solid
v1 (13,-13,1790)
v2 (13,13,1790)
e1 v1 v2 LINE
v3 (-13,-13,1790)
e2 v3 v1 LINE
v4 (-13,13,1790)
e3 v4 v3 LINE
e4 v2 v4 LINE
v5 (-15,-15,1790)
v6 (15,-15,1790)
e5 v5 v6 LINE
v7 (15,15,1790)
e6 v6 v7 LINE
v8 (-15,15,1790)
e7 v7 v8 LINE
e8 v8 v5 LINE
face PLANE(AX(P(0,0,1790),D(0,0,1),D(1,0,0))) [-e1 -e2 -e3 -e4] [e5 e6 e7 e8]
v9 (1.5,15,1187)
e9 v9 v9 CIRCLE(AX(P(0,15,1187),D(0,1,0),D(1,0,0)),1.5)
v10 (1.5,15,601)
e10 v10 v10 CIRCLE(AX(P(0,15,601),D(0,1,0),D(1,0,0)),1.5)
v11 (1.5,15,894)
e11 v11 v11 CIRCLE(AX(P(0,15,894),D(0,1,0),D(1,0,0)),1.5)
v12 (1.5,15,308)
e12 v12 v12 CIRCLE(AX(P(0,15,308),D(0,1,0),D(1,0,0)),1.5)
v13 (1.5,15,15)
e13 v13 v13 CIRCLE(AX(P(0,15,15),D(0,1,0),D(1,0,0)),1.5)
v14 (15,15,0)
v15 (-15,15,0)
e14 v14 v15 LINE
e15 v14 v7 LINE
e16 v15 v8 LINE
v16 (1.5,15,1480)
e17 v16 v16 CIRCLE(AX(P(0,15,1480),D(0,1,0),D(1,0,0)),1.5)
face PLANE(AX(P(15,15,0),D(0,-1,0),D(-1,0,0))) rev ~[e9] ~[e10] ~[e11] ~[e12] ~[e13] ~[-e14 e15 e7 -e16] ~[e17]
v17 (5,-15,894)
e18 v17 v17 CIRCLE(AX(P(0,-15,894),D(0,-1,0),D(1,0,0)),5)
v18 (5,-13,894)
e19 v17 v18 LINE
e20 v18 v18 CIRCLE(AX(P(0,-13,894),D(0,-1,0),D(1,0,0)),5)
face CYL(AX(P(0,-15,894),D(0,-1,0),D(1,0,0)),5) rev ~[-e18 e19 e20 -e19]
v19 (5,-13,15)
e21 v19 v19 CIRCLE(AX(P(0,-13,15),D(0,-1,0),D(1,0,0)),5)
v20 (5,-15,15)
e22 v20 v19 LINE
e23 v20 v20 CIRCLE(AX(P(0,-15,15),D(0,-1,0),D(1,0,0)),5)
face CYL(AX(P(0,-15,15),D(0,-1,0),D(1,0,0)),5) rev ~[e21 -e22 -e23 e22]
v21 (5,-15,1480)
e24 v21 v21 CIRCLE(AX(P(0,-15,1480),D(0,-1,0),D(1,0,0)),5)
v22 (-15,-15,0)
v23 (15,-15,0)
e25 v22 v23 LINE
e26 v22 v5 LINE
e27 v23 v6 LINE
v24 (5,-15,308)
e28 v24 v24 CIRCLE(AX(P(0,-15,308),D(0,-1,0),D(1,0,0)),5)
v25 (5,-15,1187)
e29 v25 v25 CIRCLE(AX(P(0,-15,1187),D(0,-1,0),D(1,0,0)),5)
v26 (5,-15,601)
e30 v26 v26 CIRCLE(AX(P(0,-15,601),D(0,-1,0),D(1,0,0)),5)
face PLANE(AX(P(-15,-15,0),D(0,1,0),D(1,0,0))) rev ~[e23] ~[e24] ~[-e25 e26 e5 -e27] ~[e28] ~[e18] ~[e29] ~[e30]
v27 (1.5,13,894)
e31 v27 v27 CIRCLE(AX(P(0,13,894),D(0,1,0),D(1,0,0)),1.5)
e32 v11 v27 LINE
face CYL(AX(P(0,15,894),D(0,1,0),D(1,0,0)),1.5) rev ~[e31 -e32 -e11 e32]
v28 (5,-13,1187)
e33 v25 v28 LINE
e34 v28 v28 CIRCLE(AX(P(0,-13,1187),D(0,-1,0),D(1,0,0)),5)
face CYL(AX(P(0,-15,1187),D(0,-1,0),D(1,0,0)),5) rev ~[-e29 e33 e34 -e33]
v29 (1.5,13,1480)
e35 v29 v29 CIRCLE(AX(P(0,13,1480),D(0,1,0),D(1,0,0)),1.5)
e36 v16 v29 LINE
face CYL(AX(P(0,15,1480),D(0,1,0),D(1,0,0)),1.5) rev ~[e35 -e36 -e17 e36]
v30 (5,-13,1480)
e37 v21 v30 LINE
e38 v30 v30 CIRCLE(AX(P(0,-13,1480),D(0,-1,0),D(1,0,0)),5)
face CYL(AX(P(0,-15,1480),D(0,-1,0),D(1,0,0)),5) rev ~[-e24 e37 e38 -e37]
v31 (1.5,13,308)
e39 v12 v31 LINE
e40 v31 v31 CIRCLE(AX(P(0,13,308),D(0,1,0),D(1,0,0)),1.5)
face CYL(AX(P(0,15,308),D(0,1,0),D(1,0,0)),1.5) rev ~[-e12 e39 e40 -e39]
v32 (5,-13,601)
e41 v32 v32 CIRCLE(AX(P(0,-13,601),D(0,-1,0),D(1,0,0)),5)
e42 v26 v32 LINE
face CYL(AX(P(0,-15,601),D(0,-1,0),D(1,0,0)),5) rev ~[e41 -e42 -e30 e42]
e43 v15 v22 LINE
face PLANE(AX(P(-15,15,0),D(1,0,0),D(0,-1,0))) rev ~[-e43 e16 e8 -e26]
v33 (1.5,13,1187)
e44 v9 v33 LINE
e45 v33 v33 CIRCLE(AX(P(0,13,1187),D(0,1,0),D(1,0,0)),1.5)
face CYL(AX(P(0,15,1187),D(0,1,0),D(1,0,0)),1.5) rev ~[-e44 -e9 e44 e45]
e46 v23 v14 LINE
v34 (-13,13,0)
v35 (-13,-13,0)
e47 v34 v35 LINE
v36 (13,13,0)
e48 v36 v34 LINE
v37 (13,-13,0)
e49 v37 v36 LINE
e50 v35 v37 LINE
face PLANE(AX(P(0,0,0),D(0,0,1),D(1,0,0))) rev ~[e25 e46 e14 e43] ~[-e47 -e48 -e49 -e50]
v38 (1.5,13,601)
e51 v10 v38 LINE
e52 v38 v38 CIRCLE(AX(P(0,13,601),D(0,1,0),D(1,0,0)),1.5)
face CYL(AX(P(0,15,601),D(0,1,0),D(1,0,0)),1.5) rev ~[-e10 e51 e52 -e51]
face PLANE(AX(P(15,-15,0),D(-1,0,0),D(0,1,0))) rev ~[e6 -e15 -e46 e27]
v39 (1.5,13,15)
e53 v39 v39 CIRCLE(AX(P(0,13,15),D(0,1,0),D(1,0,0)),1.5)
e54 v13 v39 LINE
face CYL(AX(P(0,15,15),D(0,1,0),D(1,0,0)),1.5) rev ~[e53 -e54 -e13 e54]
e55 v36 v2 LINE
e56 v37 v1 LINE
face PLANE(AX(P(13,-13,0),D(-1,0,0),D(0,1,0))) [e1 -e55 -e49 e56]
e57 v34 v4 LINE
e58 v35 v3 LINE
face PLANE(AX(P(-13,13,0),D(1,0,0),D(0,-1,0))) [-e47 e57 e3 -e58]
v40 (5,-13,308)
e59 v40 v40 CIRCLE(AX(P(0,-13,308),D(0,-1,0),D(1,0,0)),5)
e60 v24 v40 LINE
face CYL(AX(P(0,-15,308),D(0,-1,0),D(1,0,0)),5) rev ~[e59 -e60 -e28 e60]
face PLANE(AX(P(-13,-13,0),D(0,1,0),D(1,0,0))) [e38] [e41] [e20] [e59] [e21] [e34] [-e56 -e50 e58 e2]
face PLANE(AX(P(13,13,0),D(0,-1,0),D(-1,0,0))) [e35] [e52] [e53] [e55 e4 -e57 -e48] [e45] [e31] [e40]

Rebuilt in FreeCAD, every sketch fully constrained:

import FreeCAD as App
import Part
import Sketcher


def add_polygon(sketch, points):
    """Adds a closed chain of lines whose ends are joined by coincident constraints."""
    first, n = sketch.GeometryCount, len(points)
    for a, b in zip(points, points[1:] + points[:1]):
        sketch.addGeometry(Part.LineSegment(App.Vector(*a, 0), App.Vector(*b, 0)), False)
    for i in range(n):
        sketch.addConstraint(Sketcher.Constraint("Coincident", first + i, 2, first + (i + 1) % n, 1))

doc = App.newDocument("Part")
body = doc.addObject("PartDesign::Body", "Body")

sketch1 = doc.addObject("Sketcher::SketchObject", "Sketch")
body.addObject(sketch1)
sketch1.AttachmentSupport = (doc.XY_Plane, [""])
sketch1.MapMode = "FlatFace"
add_polygon(sketch1, [(-15, 15), (-15, -15), (15, -15), (15, 15)])
add_polygon(sketch1, [(13, -13), (-13, -13), (-13, 13), (13, 13)])
sketch1.addConstraint([
    Sketcher.Constraint("Vertical", 0),
    Sketcher.Constraint("Horizontal", 1),
    Sketcher.Constraint("Vertical", 2),
    Sketcher.Constraint("Horizontal", 3),
    Sketcher.Constraint("Horizontal", 4),
    Sketcher.Constraint("Vertical", 5),
    Sketcher.Constraint("Horizontal", 6),
    Sketcher.Constraint("Vertical", 7),
    Sketcher.Constraint("Symmetric", 0, 2, 2, 2, -1, 1),
    Sketcher.Constraint("Symmetric", 4, 2, 6, 2, -1, 1),
    Sketcher.Constraint("Equal", 3, 0),
    Sketcher.Constraint("Equal", 6, 5),
    Sketcher.Constraint("DistanceX", 1, 1, 1, 2, 30.0),
    Sketcher.Constraint("DistanceX", 4, 2, 4, 1, 26.0),
])
pad1 = doc.addObject("PartDesign::Pad", "Pad")
body.addObject(pad1)
pad1.Profile = sketch1
pad1.Length = 1790

sketch2 = doc.addObject("Sketcher::SketchObject", "Sketch001")
body.addObject(sketch2)
sketch2.AttachmentSupport = (doc.XZ_Plane, [""])
sketch2.MapMode = "FlatFace"
sketch2.AttachmentOffset = App.Placement(App.Vector(0, 0, -15), App.Rotation())
sketch2.addGeometry(Part.Circle(App.Vector(0, 15, 0), App.Vector(0, 0, 1), 1.5), False)
sketch2.addConstraint([
    Sketcher.Constraint("PointOnObject", 0, 3, -2),
    Sketcher.Constraint("Diameter", 0, 3.0),
    Sketcher.Constraint("DistanceY", -1, 1, 0, 3, 15.0),
])
pocket1 = doc.addObject("PartDesign::Pocket", "Pocket")
body.addObject(pocket1)
pocket1.Profile = sketch2
pocket1.Length = 2
pocket1.Reversed = True

sketch3 = doc.addObject("Sketcher::SketchObject", "Sketch002")
body.addObject(sketch3)
sketch3.AttachmentSupport = (doc.XZ_Plane, [""])
sketch3.MapMode = "FlatFace"
sketch3.AttachmentOffset = App.Placement(App.Vector(0, 0, 15), App.Rotation())
sketch3.addGeometry(Part.Circle(App.Vector(0, 15, 0), App.Vector(0, 0, 1), 5), False)
sketch3.addConstraint([
    Sketcher.Constraint("PointOnObject", 0, 3, -2),
    Sketcher.Constraint("Diameter", 0, 10.0),
    Sketcher.Constraint("DistanceY", -1, 1, 0, 3, 15.0),
])
pocket2 = doc.addObject("PartDesign::Pocket", "Pocket001")
body.addObject(pocket2)
pocket2.Profile = sketch3
pocket2.Length = 2
doc.recompute()

linearpattern = doc.addObject("PartDesign::LinearPattern", "LinearPattern")
body.addObject(linearpattern)
linearpattern.Originals = [pocket1]
linearpattern.Direction = (doc.Z_Axis, [""])
linearpattern.Mode = "offset"
linearpattern.Offset = 293
linearpattern.Occurrences = 6
body.Tip = linearpattern
doc.recompute()

linearpattern2 = doc.addObject("PartDesign::LinearPattern", "LinearPattern001")
body.addObject(linearpattern2)
linearpattern2.Originals = [pocket2]
linearpattern2.Direction = (doc.Z_Axis, [""])
linearpattern2.Mode = "offset"
linearpattern2.Offset = 293
linearpattern2.Occurrences = 6
body.Tip = linearpattern2

doc.recompute()
